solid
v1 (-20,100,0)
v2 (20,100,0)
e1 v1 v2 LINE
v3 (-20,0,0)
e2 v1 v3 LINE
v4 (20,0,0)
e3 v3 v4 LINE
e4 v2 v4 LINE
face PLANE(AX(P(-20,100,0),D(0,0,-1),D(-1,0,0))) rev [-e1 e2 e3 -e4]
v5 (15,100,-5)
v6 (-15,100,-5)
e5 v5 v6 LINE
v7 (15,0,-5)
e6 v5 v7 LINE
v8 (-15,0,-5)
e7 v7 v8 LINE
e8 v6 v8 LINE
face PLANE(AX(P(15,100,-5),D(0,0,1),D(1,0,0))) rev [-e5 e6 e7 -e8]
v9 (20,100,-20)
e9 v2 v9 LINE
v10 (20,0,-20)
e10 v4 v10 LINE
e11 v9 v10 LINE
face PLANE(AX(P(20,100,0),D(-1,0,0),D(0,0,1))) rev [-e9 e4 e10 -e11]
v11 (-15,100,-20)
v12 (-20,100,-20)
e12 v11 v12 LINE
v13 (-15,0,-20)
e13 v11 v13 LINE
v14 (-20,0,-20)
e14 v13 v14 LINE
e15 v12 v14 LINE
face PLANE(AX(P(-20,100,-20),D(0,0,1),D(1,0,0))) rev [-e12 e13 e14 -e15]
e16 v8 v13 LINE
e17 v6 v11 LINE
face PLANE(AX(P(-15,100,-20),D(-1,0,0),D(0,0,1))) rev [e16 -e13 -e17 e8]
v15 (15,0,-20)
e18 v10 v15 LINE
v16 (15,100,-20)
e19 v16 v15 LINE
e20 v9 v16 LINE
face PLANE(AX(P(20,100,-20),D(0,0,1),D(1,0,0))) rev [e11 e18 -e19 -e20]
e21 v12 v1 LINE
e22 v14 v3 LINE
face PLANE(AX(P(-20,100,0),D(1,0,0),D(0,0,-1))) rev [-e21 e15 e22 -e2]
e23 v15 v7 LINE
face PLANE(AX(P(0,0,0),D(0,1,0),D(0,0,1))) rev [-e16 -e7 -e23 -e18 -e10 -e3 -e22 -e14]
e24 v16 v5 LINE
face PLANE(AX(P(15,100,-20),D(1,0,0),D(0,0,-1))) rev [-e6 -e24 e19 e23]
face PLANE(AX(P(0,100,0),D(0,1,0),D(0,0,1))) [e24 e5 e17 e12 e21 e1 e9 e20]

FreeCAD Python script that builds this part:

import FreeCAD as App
import Part
import Sketcher


def add_polygon(sketch, points):
    """Adds a closed chain of lines whose ends are joined by coincident constraints."""
    first, n = sketch.GeometryCount, len(points)
    for a, b in zip(points, points[1:] + points[:1]):
        sketch.addGeometry(Part.LineSegment(App.Vector(*a, 0), App.Vector(*b, 0)), False)
    for i in range(n):
        sketch.addConstraint(Sketcher.Constraint("Coincident", first + i, 2, first + (i + 1) % n, 1))

doc = App.newDocument("Part")
body = doc.addObject("PartDesign::Body", "Body")

# Sketch on XZ plane
sketch1 = body.newObject("Sketcher::SketchObject", "Sketch")
sketch1.AttachmentSupport = (doc.getObject("XZ_Plane"), [""])
sketch1.MapMode = "FlatFace"
add_polygon(sketch1, [(-20, 0), (20, 0), (20, -20), (15, -20), (15, -5), (-15, -5), (-15, -20), (-20, -20)])  # lines 0-7
sketch1.addConstraint(Sketcher.Constraint("Horizontal", 0))
sketch1.addConstraint(Sketcher.Constraint("Vertical", 1))
sketch1.addConstraint(Sketcher.Constraint("Horizontal", 2))
sketch1.addConstraint(Sketcher.Constraint("Vertical", 3))
sketch1.addConstraint(Sketcher.Constraint("Horizontal", 4))
sketch1.addConstraint(Sketcher.Constraint("Vertical", 5))
sketch1.addConstraint(Sketcher.Constraint("Horizontal", 6))
sketch1.addConstraint(Sketcher.Constraint("Vertical", 7))
sketch1.addConstraint(Sketcher.Constraint("Symmetric", 0, 2, 7, 2, -1, 1))
sketch1.addConstraint(Sketcher.Constraint("Symmetric", 2, 2, 5, 2, -2))
sketch1.addConstraint(Sketcher.Constraint("DistanceX", 0, 1, 0, 2, 40.0))
sketch1.addConstraint(Sketcher.Constraint("DistanceX", 2, 2, 2, 1, 5.0))
sketch1.addConstraint(Sketcher.Constraint("DistanceY", 1, 2, 1, 1, 20.0))
sketch1.addConstraint(Sketcher.Constraint("DistanceY", 3, 1, 3, 2, 15.0))
pad1 = body.newObject("PartDesign::Pad", "Pad")
pad1.Profile = sketch1
pad1.Length = 100
pad1.Reversed = True

doc.recompute()
